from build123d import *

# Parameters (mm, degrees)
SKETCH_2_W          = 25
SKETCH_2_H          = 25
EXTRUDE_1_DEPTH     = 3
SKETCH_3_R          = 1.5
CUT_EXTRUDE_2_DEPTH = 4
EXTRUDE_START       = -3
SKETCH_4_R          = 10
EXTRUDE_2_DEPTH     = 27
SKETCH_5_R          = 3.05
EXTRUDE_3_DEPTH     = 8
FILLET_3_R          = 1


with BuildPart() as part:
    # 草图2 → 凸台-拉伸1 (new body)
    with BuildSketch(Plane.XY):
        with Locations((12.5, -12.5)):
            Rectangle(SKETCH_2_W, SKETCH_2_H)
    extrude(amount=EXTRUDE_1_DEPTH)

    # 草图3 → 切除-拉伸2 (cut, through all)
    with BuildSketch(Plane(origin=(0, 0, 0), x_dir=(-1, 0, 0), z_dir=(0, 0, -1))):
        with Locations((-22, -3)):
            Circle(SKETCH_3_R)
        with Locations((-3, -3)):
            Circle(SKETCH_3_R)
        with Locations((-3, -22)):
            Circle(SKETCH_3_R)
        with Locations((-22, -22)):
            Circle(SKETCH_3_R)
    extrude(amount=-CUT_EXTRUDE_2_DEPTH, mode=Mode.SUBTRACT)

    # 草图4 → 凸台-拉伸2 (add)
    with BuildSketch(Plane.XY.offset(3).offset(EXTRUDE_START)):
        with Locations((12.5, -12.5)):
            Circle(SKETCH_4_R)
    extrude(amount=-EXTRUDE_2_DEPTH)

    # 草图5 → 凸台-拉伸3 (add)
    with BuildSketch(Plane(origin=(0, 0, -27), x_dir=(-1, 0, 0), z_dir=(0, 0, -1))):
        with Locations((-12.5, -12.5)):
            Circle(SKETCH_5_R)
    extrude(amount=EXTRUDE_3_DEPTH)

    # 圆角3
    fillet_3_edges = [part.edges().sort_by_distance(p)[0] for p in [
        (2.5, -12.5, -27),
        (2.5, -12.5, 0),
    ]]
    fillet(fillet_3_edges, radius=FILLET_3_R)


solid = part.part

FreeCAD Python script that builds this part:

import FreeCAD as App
import Part
import Sketcher


def edges_at(feature, points):
    """Names of the edges that pass closest to the given points."""
    edges = feature.Shape.Edges
    near = lambda p: min(range(len(edges)), key=lambda i: edges[i].distToShape(Part.Vertex(*p))[0])
    return sorted({f"Edge{near(p) + 1}" for p in points})


def add_polygon(sketch, points):
    """Adds a closed chain of lines whose ends are joined by coincident constraints."""
    first, n = sketch.GeometryCount, len(points)
    for a, b in zip(points, points[1:] + points[:1]):
        sketch.addGeometry(Part.LineSegment(App.Vector(*a, 0), App.Vector(*b, 0)), False)
    for i in range(n):
        sketch.addConstraint(Sketcher.Constraint("Coincident", first + i, 2, first + (i + 1) % n, 1))

doc = App.newDocument("Part")
params = doc.addObject("Spreadsheet::Sheet", "Params")
for row, (alias, value) in enumerate([
    ("sketch1_width", "25 mm"),
    ("pad1_length", "3 mm"),
    ("sketch2_diameter", "3 mm"),
    ("sketch3_diameter", "20 mm"),
    ("pad2_length", "27 mm"),
    ("sketch4_diameter", "6.1 mm"),
    ("pad3_length", "8 mm"),
    ("fillet_radius", "1 mm"),
], start=1):
    params.set(f"A{row}", alias)
    params.set(f"B{row}", "=" + value)
    params.setAlias(f"B{row}", alias)

body = doc.addObject("PartDesign::Body", "Body")

sketch1 = body.newObject("Sketcher::SketchObject", "Sketch")
sketch1.AttachmentSupport = (doc.getObject("XY_Plane"), [""])
sketch1.MapMode = "FlatFace"
add_polygon(sketch1, [(0, 0), (0, -25), (25, -25), (25, 0)])
sketch1.addConstraint([
    Sketcher.Constraint("Vertical", 0),
    Sketcher.Constraint("Horizontal", 1),
    Sketcher.Constraint("Vertical", 2),
    Sketcher.Constraint("Horizontal", 3),
    Sketcher.Constraint("Coincident", 3, 2, -1, 1),
    Sketcher.Constraint("Equal", 3, 0),
    Sketcher.Constraint("DistanceX", 1, 1, 1, 2, 25.0),
])
sketch1.setExpression("Constraints[10]", "Params.sketch1_width")
pad1 = body.newObject("PartDesign::Pad", "Pad")
pad1.Profile = sketch1
pad1.setExpression("Length", "Params.pad1_length")

sketch2 = body.newObject("Sketcher::SketchObject", "Sketch001")
sketch2.AttachmentSupport = (doc.getObject("XY_Plane"), [""])
sketch2.MapMode = "FlatFace"
sketch2.addGeometry([
    Part.Circle(App.Vector(22, -3, 0), App.Vector(0, 0, 1), 1.5),
    Part.Circle(App.Vector(3, -3, 0), App.Vector(0, 0, 1), 1.5),
    Part.Circle(App.Vector(3, -22, 0), App.Vector(0, 0, 1), 1.5),
    Part.Circle(App.Vector(22, -22, 0), App.Vector(0, 0, 1), 1.5),
], False)
sketch2.addConstraint([
    Sketcher.Constraint("Equal", 0, 1),
    Sketcher.Constraint("Equal", 1, 2),
    Sketcher.Constraint("Equal", 2, 3),
    Sketcher.Constraint("Horizontal", 0, 3, 1, 3),
    Sketcher.Constraint("Horizontal", 2, 3, 3, 3),
    Sketcher.Constraint("Vertical", 1, 3, 2, 3),
    Sketcher.Constraint("Vertical", 0, 3, 3, 3),
    Sketcher.Constraint("Diameter", 0, 3.0),
    Sketcher.Constraint("DistanceX", -1, 1, 0, 3, 22.0),
    Sketcher.Constraint("DistanceY", 0, 3, -1, 1, 3.0),
    Sketcher.Constraint("DistanceX", -1, 1, 1, 3, 3.0),
    Sketcher.Constraint("DistanceY", 2, 3, -1, 1, 22.0),
])
sketch2.setExpression("Constraints[7]", "Params.sketch2_diameter")
pocket1 = body.newObject("PartDesign::Pocket", "Pocket")
pocket1.Profile = sketch2
pocket1.Type = "ThroughAll"
pocket1.Reversed = True

sketch3 = body.newObject("Sketcher::SketchObject", "Sketch002")
sketch3.AttachmentSupport = (doc.getObject("XY_Plane"), [""])
sketch3.MapMode = "FlatFace"
sketch3.addGeometry(Part.Circle(App.Vector(12, -12, 0), App.Vector(0, 0, 1), 10), False)
sketch3.addConstraint([
    Sketcher.Constraint("Diameter", 0, 20.0),
    Sketcher.Constraint("DistanceX", -1, 1, 0, 3, 12.5),
    Sketcher.Constraint("DistanceY", 0, 3, -1, 1, 12.5),
])
sketch3.setExpression("Constraints[0]", "Params.sketch3_diameter")
pad2 = body.newObject("PartDesign::Pad", "Pad001")
pad2.Profile = sketch3
pad2.setExpression("Length", "Params.pad2_length")
pad2.Reversed = True

sketch4 = body.newObject("Sketcher::SketchObject", "Sketch003")
sketch4.AttachmentSupport = (doc.getObject("XY_Plane"), [""])
sketch4.MapMode = "FlatFace"
sketch4.AttachmentOffset = App.Placement(App.Vector(0, 0, -27), App.Rotation())
sketch4.addGeometry(Part.Circle(App.Vector(12.5, -12.5, 0), App.Vector(0, 0, 1), 3), False)
sketch4.addConstraint([
    Sketcher.Constraint("Diameter", 0, 6.1),
    Sketcher.Constraint("DistanceX", -1, 1, 0, 3, 12.5),
    Sketcher.Constraint("DistanceY", 0, 3, -1, 1, 12.5),
])
sketch4.setExpression("Constraints[0]", "Params.sketch4_diameter")
pad3 = body.newObject("PartDesign::Pad", "Pad002")
pad3.Profile = sketch4
pad3.setExpression("Length", "Params.pad3_length")
pad3.Reversed = True
doc.recompute()

fillet = body.newObject("PartDesign::Fillet", "Fillet")
fillet.Base = (pad3, edges_at(pad3, [(2.5, -12.5, -27), (2.5, -12.5, 0)]))
fillet.setExpression("Radius", "Params.fillet_radius")

doc.recompute()
